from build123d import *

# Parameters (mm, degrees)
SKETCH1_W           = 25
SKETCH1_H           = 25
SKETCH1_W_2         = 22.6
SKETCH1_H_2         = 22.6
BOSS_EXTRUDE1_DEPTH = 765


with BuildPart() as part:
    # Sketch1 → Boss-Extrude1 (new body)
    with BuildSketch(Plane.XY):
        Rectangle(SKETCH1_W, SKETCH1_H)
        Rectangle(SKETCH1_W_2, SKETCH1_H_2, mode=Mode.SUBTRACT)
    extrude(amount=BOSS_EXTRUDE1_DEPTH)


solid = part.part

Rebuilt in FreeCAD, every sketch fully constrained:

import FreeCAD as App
import Part
import Sketcher

V = App.Vector

doc = App.newDocument("Part")
body = doc.addObject("PartDesign::Body", "Body")

# Sketch on XY plane
sketch1 = body.newObject("Sketcher::SketchObject", "Sketch")
sketch1.AttachmentSupport = (doc.getObject("XY_Plane"), [""])
sketch1.MapMode = "FlatFace"
sketch1.addGeometry([
    Part.LineSegment(V(-12, 12, 0), V(-12, -12, 0)),  # 0
    Part.LineSegment(V(-12, -12, 0), V(12, -12, 0)),  # 1
    Part.LineSegment(V(12, -12, 0), V(12, 12, 0)),  # 2
    Part.LineSegment(V(12, 12, 0), V(-12, 12, 0)),  # 3
    Part.LineSegment(V(11, -11, 0), V(-11, -11, 0)),  # 4
    Part.LineSegment(V(-11, -11, 0), V(-11, 11, 0)),  # 5
    Part.LineSegment(V(-11, 11, 0), V(11, 11, 0)),  # 6
    Part.LineSegment(V(11, 11, 0), V(11, -11, 0)),  # 7
], False)
sketch1.addConstraint([
    Sketcher.Constraint("Coincident", 0, 2, 1, 1),
    Sketcher.Constraint("Coincident", 1, 2, 2, 1),
    Sketcher.Constraint("Coincident", 2, 2, 3, 1),
    Sketcher.Constraint("Coincident", 3, 2, 0, 1),
    Sketcher.Constraint("Coincident", 4, 2, 5, 1),
    Sketcher.Constraint("Coincident", 5, 2, 6, 1),
    Sketcher.Constraint("Coincident", 6, 2, 7, 1),
    Sketcher.Constraint("Coincident", 7, 2, 4, 1),
    Sketcher.Constraint("Vertical", 0),
    Sketcher.Constraint("Horizontal", 1),
    Sketcher.Constraint("Vertical", 2),
    Sketcher.Constraint("Horizontal", 3),
    Sketcher.Constraint("Horizontal", 4),
    Sketcher.Constraint("Vertical", 5),
    Sketcher.Constraint("Horizontal", 6),
    Sketcher.Constraint("Vertical", 7),
    Sketcher.Constraint("Symmetric", 0, 2, 2, 2, -1, 1),
    Sketcher.Constraint("Symmetric", 4, 2, 6, 2, -1, 1),
    Sketcher.Constraint("Equal", 3, 0),
    Sketcher.Constraint("Equal", 6, 5),
    Sketcher.Constraint("DistanceX", 1, 1, 1, 2, 25.0),
    Sketcher.Constraint("DistanceX", 4, 2, 4, 1, 22.6),
])
pad1 = body.newObject("PartDesign::Pad", "Pad")
pad1.Profile = sketch1
pad1.Length = 765

doc.recompute()
